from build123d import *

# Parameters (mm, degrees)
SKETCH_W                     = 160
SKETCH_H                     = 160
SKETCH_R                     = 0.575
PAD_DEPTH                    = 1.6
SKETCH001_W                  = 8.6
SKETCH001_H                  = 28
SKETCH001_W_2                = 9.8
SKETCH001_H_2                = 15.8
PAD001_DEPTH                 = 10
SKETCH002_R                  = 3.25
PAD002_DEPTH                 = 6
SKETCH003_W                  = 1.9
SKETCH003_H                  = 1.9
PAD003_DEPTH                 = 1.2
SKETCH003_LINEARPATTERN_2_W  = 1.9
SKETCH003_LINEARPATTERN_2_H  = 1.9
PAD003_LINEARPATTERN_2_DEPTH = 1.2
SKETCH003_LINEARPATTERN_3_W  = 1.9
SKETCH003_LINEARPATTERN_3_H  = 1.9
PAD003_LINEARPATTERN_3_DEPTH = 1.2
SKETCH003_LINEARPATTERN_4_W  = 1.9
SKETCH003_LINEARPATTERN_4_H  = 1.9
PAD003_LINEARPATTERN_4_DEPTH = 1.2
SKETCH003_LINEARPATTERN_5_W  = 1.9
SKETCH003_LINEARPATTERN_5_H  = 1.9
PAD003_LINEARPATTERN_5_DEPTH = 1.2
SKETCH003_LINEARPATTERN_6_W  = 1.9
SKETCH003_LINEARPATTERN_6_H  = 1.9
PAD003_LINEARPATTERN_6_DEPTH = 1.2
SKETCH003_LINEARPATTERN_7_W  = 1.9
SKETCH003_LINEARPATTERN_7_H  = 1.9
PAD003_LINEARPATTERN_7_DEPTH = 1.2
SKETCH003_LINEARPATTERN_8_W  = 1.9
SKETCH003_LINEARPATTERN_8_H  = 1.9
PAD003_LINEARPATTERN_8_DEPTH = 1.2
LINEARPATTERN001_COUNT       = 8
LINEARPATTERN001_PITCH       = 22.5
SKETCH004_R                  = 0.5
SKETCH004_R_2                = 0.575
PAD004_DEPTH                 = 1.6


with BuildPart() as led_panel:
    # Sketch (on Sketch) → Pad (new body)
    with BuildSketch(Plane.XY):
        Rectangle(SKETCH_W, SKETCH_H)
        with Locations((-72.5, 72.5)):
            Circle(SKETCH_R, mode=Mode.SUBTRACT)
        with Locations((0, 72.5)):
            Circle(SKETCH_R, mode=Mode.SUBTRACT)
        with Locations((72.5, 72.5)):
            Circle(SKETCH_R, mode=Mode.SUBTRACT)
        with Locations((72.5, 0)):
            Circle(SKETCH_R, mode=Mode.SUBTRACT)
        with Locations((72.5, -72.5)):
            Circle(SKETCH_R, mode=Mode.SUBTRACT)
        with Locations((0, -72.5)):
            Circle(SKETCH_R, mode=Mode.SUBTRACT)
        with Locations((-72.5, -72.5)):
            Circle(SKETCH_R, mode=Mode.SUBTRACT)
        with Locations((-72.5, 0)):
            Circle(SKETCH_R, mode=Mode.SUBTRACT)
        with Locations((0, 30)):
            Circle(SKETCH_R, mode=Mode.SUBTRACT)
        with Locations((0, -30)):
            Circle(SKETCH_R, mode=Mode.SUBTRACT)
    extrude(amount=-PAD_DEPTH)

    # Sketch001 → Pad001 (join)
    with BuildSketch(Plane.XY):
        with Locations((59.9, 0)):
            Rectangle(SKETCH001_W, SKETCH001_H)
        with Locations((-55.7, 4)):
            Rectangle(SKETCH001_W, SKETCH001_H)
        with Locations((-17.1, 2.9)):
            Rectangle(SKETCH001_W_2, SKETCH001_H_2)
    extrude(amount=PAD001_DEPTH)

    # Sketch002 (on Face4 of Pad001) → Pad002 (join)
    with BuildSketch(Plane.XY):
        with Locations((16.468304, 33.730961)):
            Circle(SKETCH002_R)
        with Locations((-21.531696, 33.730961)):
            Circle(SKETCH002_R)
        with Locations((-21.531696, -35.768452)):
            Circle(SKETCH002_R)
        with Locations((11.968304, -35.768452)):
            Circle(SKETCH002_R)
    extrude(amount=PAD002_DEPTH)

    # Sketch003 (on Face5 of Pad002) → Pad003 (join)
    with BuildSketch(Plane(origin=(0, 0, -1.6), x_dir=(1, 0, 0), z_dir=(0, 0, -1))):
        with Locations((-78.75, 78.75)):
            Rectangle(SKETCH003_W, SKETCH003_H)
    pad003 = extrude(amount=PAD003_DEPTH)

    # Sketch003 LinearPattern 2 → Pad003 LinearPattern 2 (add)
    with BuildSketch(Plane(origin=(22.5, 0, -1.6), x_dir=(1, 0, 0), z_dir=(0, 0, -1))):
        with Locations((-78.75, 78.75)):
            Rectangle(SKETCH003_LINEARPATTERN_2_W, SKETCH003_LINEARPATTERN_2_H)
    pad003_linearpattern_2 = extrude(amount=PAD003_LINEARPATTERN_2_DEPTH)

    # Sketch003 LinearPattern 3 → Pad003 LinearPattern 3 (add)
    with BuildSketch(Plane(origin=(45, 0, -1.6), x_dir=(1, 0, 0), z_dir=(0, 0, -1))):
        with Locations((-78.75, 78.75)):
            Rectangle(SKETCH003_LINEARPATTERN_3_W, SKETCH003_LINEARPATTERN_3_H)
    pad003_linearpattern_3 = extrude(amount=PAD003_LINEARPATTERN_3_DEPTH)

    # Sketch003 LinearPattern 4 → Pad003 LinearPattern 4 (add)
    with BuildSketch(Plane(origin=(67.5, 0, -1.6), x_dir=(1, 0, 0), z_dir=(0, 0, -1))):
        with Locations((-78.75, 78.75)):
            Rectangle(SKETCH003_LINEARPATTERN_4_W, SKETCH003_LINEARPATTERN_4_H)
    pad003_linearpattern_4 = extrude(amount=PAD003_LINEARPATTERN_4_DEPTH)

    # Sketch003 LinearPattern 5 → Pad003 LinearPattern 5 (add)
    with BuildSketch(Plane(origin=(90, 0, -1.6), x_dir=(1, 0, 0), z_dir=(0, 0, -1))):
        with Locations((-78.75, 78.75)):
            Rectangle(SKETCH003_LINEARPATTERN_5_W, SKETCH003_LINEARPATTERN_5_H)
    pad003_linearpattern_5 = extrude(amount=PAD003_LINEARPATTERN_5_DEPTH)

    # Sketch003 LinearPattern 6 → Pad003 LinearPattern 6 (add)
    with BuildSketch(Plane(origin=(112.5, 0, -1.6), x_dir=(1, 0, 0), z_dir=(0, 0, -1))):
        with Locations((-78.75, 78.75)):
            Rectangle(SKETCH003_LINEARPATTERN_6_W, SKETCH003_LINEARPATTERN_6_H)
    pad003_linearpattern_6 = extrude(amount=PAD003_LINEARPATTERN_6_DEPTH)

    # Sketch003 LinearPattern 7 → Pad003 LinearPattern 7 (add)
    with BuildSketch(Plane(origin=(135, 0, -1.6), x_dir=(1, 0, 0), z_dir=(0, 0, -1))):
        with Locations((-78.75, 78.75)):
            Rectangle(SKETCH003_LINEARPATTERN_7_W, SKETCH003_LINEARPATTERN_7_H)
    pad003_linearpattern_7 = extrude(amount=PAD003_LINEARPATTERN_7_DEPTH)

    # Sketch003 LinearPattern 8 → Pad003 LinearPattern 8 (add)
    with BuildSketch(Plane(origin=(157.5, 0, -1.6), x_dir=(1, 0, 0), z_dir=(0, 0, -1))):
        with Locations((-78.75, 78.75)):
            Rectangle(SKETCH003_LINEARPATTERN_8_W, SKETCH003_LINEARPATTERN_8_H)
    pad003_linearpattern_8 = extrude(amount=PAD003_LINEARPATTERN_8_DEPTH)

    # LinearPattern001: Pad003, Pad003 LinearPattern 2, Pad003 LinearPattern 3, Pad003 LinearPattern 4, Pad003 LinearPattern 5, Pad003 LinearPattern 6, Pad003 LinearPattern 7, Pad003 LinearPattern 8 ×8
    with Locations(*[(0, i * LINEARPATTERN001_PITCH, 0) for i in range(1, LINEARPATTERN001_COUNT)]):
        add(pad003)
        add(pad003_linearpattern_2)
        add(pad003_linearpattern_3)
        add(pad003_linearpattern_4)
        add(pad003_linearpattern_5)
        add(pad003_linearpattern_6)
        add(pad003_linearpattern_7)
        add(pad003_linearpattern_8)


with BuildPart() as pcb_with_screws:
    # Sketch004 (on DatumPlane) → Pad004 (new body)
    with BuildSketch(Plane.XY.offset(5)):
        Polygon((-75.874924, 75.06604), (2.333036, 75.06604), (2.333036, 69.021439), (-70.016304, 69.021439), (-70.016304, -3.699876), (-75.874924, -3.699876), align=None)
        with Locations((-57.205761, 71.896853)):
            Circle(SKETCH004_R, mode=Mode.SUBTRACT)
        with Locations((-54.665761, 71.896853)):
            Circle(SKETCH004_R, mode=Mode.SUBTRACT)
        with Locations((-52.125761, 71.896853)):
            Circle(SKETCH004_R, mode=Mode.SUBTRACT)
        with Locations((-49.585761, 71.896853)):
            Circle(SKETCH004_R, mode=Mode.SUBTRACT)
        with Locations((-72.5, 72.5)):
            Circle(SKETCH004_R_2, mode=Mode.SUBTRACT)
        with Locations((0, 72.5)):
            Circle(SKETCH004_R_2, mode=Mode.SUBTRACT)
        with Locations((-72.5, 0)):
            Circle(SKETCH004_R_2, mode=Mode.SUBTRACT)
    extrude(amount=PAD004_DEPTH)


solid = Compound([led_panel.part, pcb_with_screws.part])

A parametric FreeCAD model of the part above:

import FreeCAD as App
import Part
import Sketcher
Q = App.Units.Quantity


def add_polygon(sketch, points):
    """Adds a closed chain of lines whose ends are joined by coincident constraints."""
    first, n = sketch.GeometryCount, len(points)
    for a, b in zip(points, points[1:] + points[:1]):
        sketch.addGeometry(Part.LineSegment(App.Vector(*a, 0), App.Vector(*b, 0)), False)
    for i in range(n):
        sketch.addConstraint(Sketcher.Constraint("Coincident", first + i, 2, first + (i + 1) % n, 1))

doc = App.newDocument("Part")
body = doc.addObject("PartDesign::Body", "Body")

# Sketch on XY plane
sketch1 = body.newObject("Sketcher::SketchObject", "Sketch")
sketch1.AttachmentSupport = (doc.getObject("XY_Plane"), [""])
sketch1.MapMode = "FlatFace"
add_polygon(sketch1, [(-80, 80), (-80, -80), (80, -80), (80, 80)])  # lines 0-3
sketch1.addGeometry(Part.Circle(App.Vector(-72.5, -72.5, 0), App.Vector(0, 0, 1), 0.575), False)  # 4
sketch1.addGeometry(Part.Circle(App.Vector(0, -72.5, 0), App.Vector(0, 0, 1), 0.575), False)  # 5
sketch1.addGeometry(Part.Circle(App.Vector(72.5, -72.5, 0), App.Vector(0, 0, 1), 0.575), False)  # 6
sketch1.addGeometry(Part.Circle(App.Vector(0, -30, 0), App.Vector(0, 0, 1), 0.575), False)  # 7
sketch1.addGeometry(Part.Circle(App.Vector(-72.5, 0, 0), App.Vector(0, 0, 1), 0.575), False)  # 8
sketch1.addGeometry(Part.Circle(App.Vector(-72.5, 72.5, 0), App.Vector(0, 0, 1), 0.575), False)  # 9
sketch1.addGeometry(Part.Circle(App.Vector(0, 30, 0), App.Vector(0, 0, 1), 0.575), False)  # 10
sketch1.addGeometry(Part.Circle(App.Vector(72.5, 0, 0), App.Vector(0, 0, 1), 0.575), False)  # 11
sketch1.addGeometry(Part.Circle(App.Vector(0, 72.5, 0), App.Vector(0, 0, 1), 0.575), False)  # 12
sketch1.addGeometry(Part.Circle(App.Vector(72.5, 72.5, 0), App.Vector(0, 0, 1), 0.575), False)  # 13
sketch1.addConstraint([
    Sketcher.Constraint("Vertical", 0),
    Sketcher.Constraint("Horizontal", 1),
    Sketcher.Constraint("Vertical", 2),
    Sketcher.Constraint("Horizontal", 3),
    Sketcher.Constraint("Equal", 4, 5),
    Sketcher.Constraint("Equal", 5, 6),
    Sketcher.Constraint("Equal", 6, 7),
    Sketcher.Constraint("Equal", 7, 8),
    Sketcher.Constraint("Equal", 8, 9),
    Sketcher.Constraint("Equal", 9, 10),
    Sketcher.Constraint("Equal", 10, 11),
    Sketcher.Constraint("Equal", 11, 12),
    Sketcher.Constraint("Equal", 12, 13),
    Sketcher.Constraint("Symmetric", 6, 3, 9, 3, -1, 1),
    Sketcher.Constraint("Symmetric", 7, 3, 10, 3, -1, 1),
    Sketcher.Constraint("Symmetric", 8, 3, 11, 3, -1, 1),
    Sketcher.Constraint("Symmetric", 5, 3, 12, 3, -1, 1),
    Sketcher.Constraint("Symmetric", 4, 3, 13, 3, -1, 1),
    Sketcher.Constraint("Symmetric", 0, 2, 2, 2, -1, 1),
    Sketcher.Constraint("Symmetric", 4, 3, 6, 3, -2),
    Sketcher.Constraint("PointOnObject", 5, 3, -2),
    Sketcher.Constraint("PointOnObject", 7, 3, -2),
    Sketcher.Constraint("PointOnObject", 8, 3, -1),
    Sketcher.Constraint("Horizontal", 4, 3, 5, 3),
    Sketcher.Constraint("Vertical", 4, 3, 8, 3),
    Sketcher.Constraint("Equal", 3, 0),
    Sketcher.Constraint("Diameter", 4, Q("1.15 mm")),
    Sketcher.Constraint("DistanceX", 1, 1, 1, 2, Q("160 mm")),
    Sketcher.Constraint("DistanceY", 7, 3, -1, 1, Q("30 mm")),
    Sketcher.Constraint("DistanceX", 4, 3, 6, 3, Q("145 mm")),
    Sketcher.Constraint("DistanceY", 4, 3, 9, 3, Q("145 mm")),
])
pad1 = body.newObject("PartDesign::Pad", "Pad")
pad1.Profile = sketch1
pad1.Length = 1.6
pad1.Reversed = True

# Sketch on XY plane
sketch2 = body.newObject("Sketcher::SketchObject", "Sketch001")
sketch2.AttachmentSupport = (doc.getObject("XY_Plane"), [""])
sketch2.MapMode = "FlatFace"
add_polygon(sketch2, [(55.6, 14), (55.6, -14), (64.2, -14), (64.2, 14)])  # lines 0-3
add_polygon(sketch2, [(-60, 18), (-60, -10), (-51.4, -10), (-51.4, 18)])  # lines 4-7
add_polygon(sketch2, [(-22, 10.8), (-22, -5), (-12.2, -5), (-12.2, 10.8)])  # lines 8-11
sketch2.addConstraint([
    Sketcher.Constraint("Vertical", 0),
    Sketcher.Constraint("Horizontal", 1),
    Sketcher.Constraint("Vertical", 2),
    Sketcher.Constraint("Horizontal", 3),
    Sketcher.Constraint("Vertical", 4),
    Sketcher.Constraint("Horizontal", 5),
    Sketcher.Constraint("Vertical", 6),
    Sketcher.Constraint("Horizontal", 7),
    Sketcher.Constraint("Vertical", 8),
    Sketcher.Constraint("Horizontal", 9),
    Sketcher.Constraint("Vertical", 10),
    Sketcher.Constraint("Horizontal", 11),
    Sketcher.Constraint("Equal", 3, 5),
    Sketcher.Constraint("Equal", 2, 4),
    Sketcher.Constraint("DistanceY", 0, 2, 0, 1, Q("28 mm")),
    Sketcher.Constraint("DistanceX", 1, 1, 1, 2, Q("8.6 mm")),
    Sketcher.Constraint("DistanceX", 9, 1, 9, 2, Q("9.8 mm")),
    Sketcher.Constraint("DistanceY", 8, 2, 8, 1, Q("15.8 mm")),
    Sketcher.Constraint("DistanceY", 0, 2, -1, 1, Q("14 mm")),
    Sketcher.Constraint("DistanceX", 4, 2, -1, 1, Q("60 mm")),
    Sketcher.Constraint("DistanceY", 4, 2, -1, 1, Q("10 mm")),
    Sketcher.Constraint("DistanceX", 8, 2, -1, 1, Q("22 mm")),
    Sketcher.Constraint("DistanceY", 8, 2, -1, 1, Q("5 mm")),
    Sketcher.Constraint("DistanceX", 5, 2, 0, 2, Q("107 mm")),
])
pad2 = body.newObject("PartDesign::Pad", "Pad001")
pad2.Profile = sketch2
pad2.Length = 10

# Sketch on XY plane
sketch3 = body.newObject("Sketcher::SketchObject", "Sketch002")
sketch3.AttachmentSupport = (doc.getObject("XY_Plane"), [""])
sketch3.MapMode = "FlatFace"
sketch3.addGeometry([
    Part.Circle(App.Vector(16.468304, 33.730961, 0), App.Vector(0, 0, 1), 3.25),
    Part.Circle(App.Vector(-21.531696, 33.730961, 0), App.Vector(0, 0, 1), 3.25),
    Part.Circle(App.Vector(-21.531696, -35.768452, 0), App.Vector(0, 0, 1), 3.25),
    Part.Circle(App.Vector(11.968304, -35.768452, 0), App.Vector(0, 0, 1), 3.25),
], False)
sketch3.addConstraint([
    Sketcher.Constraint("Equal", 0, 1),
    Sketcher.Constraint("Equal", 1, 2),
    Sketcher.Constraint("Equal", 2, 3),
    Sketcher.Constraint("Horizontal", 0, 3, 1, 3),
    Sketcher.Constraint("Horizontal", 2, 3, 3, 3),
    Sketcher.Constraint("Vertical", 1, 3, 2, 3),
    Sketcher.Constraint("Diameter", 0, Q("6.5 mm")),
    Sketcher.Constraint("DistanceX", 1, 3, 0, 3, Q("38 mm")),
    Sketcher.Constraint("DistanceX", 2, 3, 3, 3, Q("33.5 mm")),
    Sketcher.Constraint("DistanceY", -1, 1, 0, 3, Q("33.730961 mm")),
    Sketcher.Constraint("DistanceX", -1, 1, 0, 3, Q("16.468304 mm")),
    Sketcher.Constraint("DistanceY", 2, 3, -1, 1, Q("35.768452 mm")),
])
pad3 = body.newObject("PartDesign::Pad", "Pad002")
pad3.Profile = sketch3
pad3.Length = 6

# Sketch on XY plane
sketch4 = body.newObject("Sketcher::SketchObject", "Sketch003")
sketch4.AttachmentSupport = (doc.getObject("XY_Plane"), [""])
sketch4.MapMode = "FlatFace"
sketch4.AttachmentOffset = App.Placement(App.Vector(0, 0, -1.6), App.Rotation())
add_polygon(sketch4, [(-79.7, -79.7), (-79.7, -77.8), (-77.8, -77.8), (-77.8, -79.7)])  # lines 0-3
sketch4.addConstraint([
    Sketcher.Constraint("Vertical", 0),
    Sketcher.Constraint("Horizontal", 1),
    Sketcher.Constraint("Vertical", 2),
    Sketcher.Constraint("Horizontal", 3),
    Sketcher.Constraint("Equal", 3, 0),
    Sketcher.Constraint("DistanceX", 1, 1, 1, 2, Q("1.9 mm")),
    Sketcher.Constraint("DistanceX", 0, 2, -1, 1, Q("79.7 mm")),
    Sketcher.Constraint("DistanceY", 0, 2, -1, 1, Q("77.8 mm")),
])
pad4 = body.newObject("PartDesign::Pad", "Pad003")
pad4.Profile = sketch4
pad4.Length = 1.2
pad4.Reversed = True

# Sketch on XY plane
sketch5 = body.newObject("Sketcher::SketchObject", "Sketch004")
sketch5.AttachmentSupport = (doc.getObject("XY_Plane"), [""])
sketch5.MapMode = "FlatFace"
sketch5.AttachmentOffset = App.Placement(App.Vector(0, 0, -1.6), App.Rotation())
add_polygon(sketch5, [(-57.2, -79.7), (-57.2, -77.8), (-55.3, -77.8), (-55.3, -79.7)])  # lines 0-3
sketch5.addConstraint([
    Sketcher.Constraint("Vertical", 0),
    Sketcher.Constraint("Horizontal", 1),
    Sketcher.Constraint("Vertical", 2),
    Sketcher.Constraint("Horizontal", 3),
    Sketcher.Constraint("Equal", 3, 0),
    Sketcher.Constraint("DistanceX", 1, 1, 1, 2, Q("1.9 mm")),
    Sketcher.Constraint("DistanceX", 0, 2, -1, 1, Q("57.2 mm")),
    Sketcher.Constraint("DistanceY", 0, 2, -1, 1, Q("77.8 mm")),
])
pad5 = body.newObject("PartDesign::Pad", "Pad004")
pad5.Profile = sketch5
pad5.Length = 1.2
pad5.Reversed = True

# Sketch on XY plane
sketch6 = body.newObject("Sketcher::SketchObject", "Sketch005")
sketch6.AttachmentSupport = (doc.getObject("XY_Plane"), [""])
sketch6.MapMode = "FlatFace"
sketch6.AttachmentOffset = App.Placement(App.Vector(0, 0, -1.6), App.Rotation())
add_polygon(sketch6, [(-34.7, -79.7), (-34.7, -77.8), (-32.8, -77.8), (-32.8, -79.7)])  # lines 0-3
sketch6.addConstraint([
    Sketcher.Constraint("Vertical", 0),
    Sketcher.Constraint("Horizontal", 1),
    Sketcher.Constraint("Vertical", 2),
    Sketcher.Constraint("Horizontal", 3),
    Sketcher.Constraint("Equal", 3, 0),
    Sketcher.Constraint("DistanceX", 1, 1, 1, 2, Q("1.9 mm")),
    Sketcher.Constraint("DistanceX", 0, 2, -1, 1, Q("34.7 mm")),
    Sketcher.Constraint("DistanceY", 0, 2, -1, 1, Q("77.8 mm")),
])
pad6 = body.newObject("PartDesign::Pad", "Pad005")
pad6.Profile = sketch6
pad6.Length = 1.2
pad6.Reversed = True

# Sketch on XY plane
sketch7 = body.newObject("Sketcher::SketchObject", "Sketch006")
sketch7.AttachmentSupport = (doc.getObject("XY_Plane"), [""])
sketch7.MapMode = "FlatFace"
sketch7.AttachmentOffset = App.Placement(App.Vector(0, 0, -1.6), App.Rotation())
add_polygon(sketch7, [(-12.2, -79.7), (-12.2, -77.8), (-10.3, -77.8), (-10.3, -79.7)])  # lines 0-3
sketch7.addConstraint([
    Sketcher.Constraint("Vertical", 0),
    Sketcher.Constraint("Horizontal", 1),
    Sketcher.Constraint("Vertical", 2),
    Sketcher.Constraint("Horizontal", 3),
    Sketcher.Constraint("Equal", 3, 0),
    Sketcher.Constraint("DistanceX", 1, 1, 1, 2, Q("1.9 mm")),
    Sketcher.Constraint("DistanceX", 0, 2, -1, 1, Q("12.2 mm")),
    Sketcher.Constraint("DistanceY", 0, 2, -1, 1, Q("77.8 mm")),
])
pad7 = body.newObject("PartDesign::Pad", "Pad006")
pad7.Profile = sketch7
pad7.Length = 1.2
pad7.Reversed = True

# Sketch on XY plane
sketch8 = body.newObject("Sketcher::SketchObject", "Sketch007")
sketch8.AttachmentSupport = (doc.getObject("XY_Plane"), [""])
sketch8.MapMode = "FlatFace"
sketch8.AttachmentOffset = App.Placement(App.Vector(0, 0, -1.6), App.Rotation())
add_polygon(sketch8, [(10.3, -79.7), (10.3, -77.8), (12.2, -77.8), (12.2, -79.7)])  # lines 0-3
sketch8.addConstraint([
    Sketcher.Constraint("Vertical", 0),
    Sketcher.Constraint("Horizontal", 1),
    Sketcher.Constraint("Vertical", 2),
    Sketcher.Constraint("Horizontal", 3),
    Sketcher.Constraint("Equal", 3, 0),
    Sketcher.Constraint("DistanceX", 1, 1, 1, 2, Q("1.9 mm")),
    Sketcher.Constraint("DistanceX", -1, 1, 0, 2, Q("10.3 mm")),
    Sketcher.Constraint("DistanceY", 0, 2, -1, 1, Q("77.8 mm")),
])
pad8 = body.newObject("PartDesign::Pad", "Pad007")
pad8.Profile = sketch8
pad8.Length = 1.2
pad8.Reversed = True

# Sketch on XY plane
sketch9 = body.newObject("Sketcher::SketchObject", "Sketch008")
sketch9.AttachmentSupport = (doc.getObject("XY_Plane"), [""])
sketch9.MapMode = "FlatFace"
sketch9.AttachmentOffset = App.Placement(App.Vector(0, 0, -1.6), App.Rotation())
add_polygon(sketch9, [(32.8, -79.7), (32.8, -77.8), (34.7, -77.8), (34.7, -79.7)])  # lines 0-3
sketch9.addConstraint([
    Sketcher.Constraint("Vertical", 0),
    Sketcher.Constraint("Horizontal", 1),
    Sketcher.Constraint("Vertical", 2),
    Sketcher.Constraint("Horizontal", 3),
    Sketcher.Constraint("Equal", 3, 0),
    Sketcher.Constraint("DistanceX", 1, 1, 1, 2, Q("1.9 mm")),
    Sketcher.Constraint("DistanceX", -1, 1, 0, 2, Q("32.8 mm")),
    Sketcher.Constraint("DistanceY", 0, 2, -1, 1, Q("77.8 mm")),
])
pad9 = body.newObject("PartDesign::Pad", "Pad008")
pad9.Profile = sketch9
pad9.Length = 1.2
pad9.Reversed = True

# Sketch on XY plane
sketch10 = body.newObject("Sketcher::SketchObject", "Sketch009")
sketch10.AttachmentSupport = (doc.getObject("XY_Plane"), [""])
sketch10.MapMode = "FlatFace"
sketch10.AttachmentOffset = App.Placement(App.Vector(0, 0, -1.6), App.Rotation())
add_polygon(sketch10, [(55.3, -79.7), (55.3, -77.8), (57.2, -77.8), (57.2, -79.7)])  # lines 0-3
sketch10.addConstraint([
    Sketcher.Constraint("Vertical", 0),
    Sketcher.Constraint("Horizontal", 1),
    Sketcher.Constraint("Vertical", 2),
    Sketcher.Constraint("Horizontal", 3),
    Sketcher.Constraint("Equal", 3, 0),
    Sketcher.Constraint("DistanceX", 1, 1, 1, 2, Q("1.9 mm")),
    Sketcher.Constraint("DistanceX", -1, 1, 0, 2, Q("55.3 mm")),
    Sketcher.Constraint("DistanceY", 0, 2, -1, 1, Q("77.8 mm")),
])
pad10 = body.newObject("PartDesign::Pad", "Pad009")
pad10.Profile = sketch10
pad10.Length = 1.2
pad10.Reversed = True

# Sketch on XY plane
sketch11 = body.newObject("Sketcher::SketchObject", "Sketch010")
sketch11.AttachmentSupport = (doc.getObject("XY_Plane"), [""])
sketch11.MapMode = "FlatFace"
sketch11.AttachmentOffset = App.Placement(App.Vector(0, 0, -1.6), App.Rotation())
add_polygon(sketch11, [(77.8, -79.7), (77.8, -77.8), (79.7, -77.8), (79.7, -79.7)])  # lines 0-3
sketch11.addConstraint([
    Sketcher.Constraint("Vertical", 0),
    Sketcher.Constraint("Horizontal", 1),
    Sketcher.Constraint("Vertical", 2),
    Sketcher.Constraint("Horizontal", 3),
    Sketcher.Constraint("Equal", 3, 0),
    Sketcher.Constraint("DistanceX", 1, 1, 1, 2, Q("1.9 mm")),
    Sketcher.Constraint("DistanceX", -1, 1, 0, 2, Q("77.8 mm")),
    Sketcher.Constraint("DistanceY", 0, 2, -1, 1, Q("77.8 mm")),
])
pad11 = body.newObject("PartDesign::Pad", "Pad010")
pad11.Profile = sketch11
pad11.Length = 1.2
pad11.Reversed = True
doc.recompute()

linearpattern = body.newObject("PartDesign::LinearPattern", "LinearPattern")
linearpattern.Originals = [pad4, pad5, pad6, pad7, pad8, pad9, pad10, pad11]
linearpattern.Direction = (doc.getObject("Y_Axis"), [""])
linearpattern.Mode = "offset"
linearpattern.Offset = 22.5
linearpattern.Occurrences = 8
body.Tip = linearpattern
body2 = doc.addObject("PartDesign::Body", "Body001")

# Sketch on XY plane
sketch12 = body2.newObject("Sketcher::SketchObject", "Sketch011")
sketch12.AttachmentSupport = (doc.getObject("XY_Plane001"), [""])
sketch12.MapMode = "FlatFace"
sketch12.AttachmentOffset = App.Placement(App.Vector(0, 0, 5), App.Rotation())
add_polygon(sketch12, [(2.333036, 75.06604), (-75.874924, 75.06604), (-75.874924, -3.699876), (-70.016304, -3.699876), (-70.016304, 69.021439), (2.333036, 69.021439)])  # lines 0-5
sketch12.addGeometry(Part.Circle(App.Vector(-72.5, 0, 0), App.Vector(0, 0, 1), 0.575), False)  # 6
sketch12.addGeometry(Part.Circle(App.Vector(0, 72.5, 0), App.Vector(0, 0, 1), 0.575), False)  # 7
sketch12.addGeometry(Part.Circle(App.Vector(-49.585761, 71.896853, 0), App.Vector(0, 0, 1), 0.5), False)  # 8
sketch12.addGeometry(Part.Circle(App.Vector(-52.125761, 71.896853, 0), App.Vector(0, 0, 1), 0.5), False)  # 9
sketch12.addGeometry(Part.Circle(App.Vector(-54.665761, 71.896853, 0), App.Vector(0, 0, 1), 0.5), False)  # 10
sketch12.addGeometry(Part.Circle(App.Vector(-57.205761, 71.896853, 0), App.Vector(0, 0, 1), 0.5), False)  # 11
sketch12.addGeometry(Part.Circle(App.Vector(-72.5, 72.5, 0), App.Vector(0, 0, 1), 0.575), False)  # 12
sketch12.addConstraint([
    Sketcher.Constraint("Horizontal", 0),
    Sketcher.Constraint("Vertical", 1),
    Sketcher.Constraint("Horizontal", 2),
    Sketcher.Constraint("Vertical", 3),
    Sketcher.Constraint("Horizontal", 4),
    Sketcher.Constraint("Vertical", 5),
    Sketcher.Constraint("Equal", 6, 7),
    Sketcher.Constraint("Equal", 8, 9),
    Sketcher.Constraint("Equal", 9, 10),
    Sketcher.Constraint("Equal", 10, 11),
    Sketcher.Constraint("Equal", 7, 12),
    Sketcher.Constraint("PointOnObject", 6, 3, -1),
    Sketcher.Constraint("PointOnObject", 7, 3, -2),
    Sketcher.Constraint("Horizontal", 8, 3, 9, 3),
    Sketcher.Constraint("Horizontal", 9, 3, 10, 3),
    Sketcher.Constraint("Horizontal", 10, 3, 11, 3),
    Sketcher.Constraint("Horizontal", 7, 3, 12, 3),
    Sketcher.Constraint("Vertical", 6, 3, 12, 3),
    Sketcher.Constraint("Diameter", 8, Q("1 mm")),
    Sketcher.Constraint("Diameter", 6, Q("1.15 mm")),
    Sketcher.Constraint("DistanceX", 6, 3, -1, 1, Q("72.5 mm")),
    Sketcher.Constraint("DistanceY", -1, 1, 7, 3, Q("72.5 mm")),
    Sketcher.Constraint("DistanceX", 9, 3, 8, 3, Q("2.54 mm")),
    Sketcher.Constraint("DistanceX", 10, 3, 9, 3, Q("2.54 mm")),
    Sketcher.Constraint("DistanceX", 11, 3, 10, 3, Q("2.54 mm")),
    Sketcher.Constraint("DistanceY", 5, 1, 5, 2, Q("6.044601 mm")),
    Sketcher.Constraint("DistanceX", 0, 2, 0, 1, Q("78.20796 mm")),
    Sketcher.Constraint("DistanceX", 2, 1, 2, 2, Q("5.85862 mm")),
    Sketcher.Constraint("DistanceY", 1, 2, 1, 1, Q("78.765916 mm")),
    Sketcher.Constraint("DistanceX", 8, 3, -1, 1, Q("49.585761 mm")),
    Sketcher.Constraint("DistanceY", -1, 1, 0, 2, Q("75.06604 mm")),
    Sketcher.Constraint("DistanceY", 1, 2, 11, 3, Q("75.596729 mm")),
    Sketcher.Constraint("DistanceX", 0, 2, -1, 1, Q("75.874924 mm")),
])
pad12 = body2.newObject("PartDesign::Pad", "Pad011")
pad12.Profile = sketch12
pad12.Length = 1.6

doc.recompute()
